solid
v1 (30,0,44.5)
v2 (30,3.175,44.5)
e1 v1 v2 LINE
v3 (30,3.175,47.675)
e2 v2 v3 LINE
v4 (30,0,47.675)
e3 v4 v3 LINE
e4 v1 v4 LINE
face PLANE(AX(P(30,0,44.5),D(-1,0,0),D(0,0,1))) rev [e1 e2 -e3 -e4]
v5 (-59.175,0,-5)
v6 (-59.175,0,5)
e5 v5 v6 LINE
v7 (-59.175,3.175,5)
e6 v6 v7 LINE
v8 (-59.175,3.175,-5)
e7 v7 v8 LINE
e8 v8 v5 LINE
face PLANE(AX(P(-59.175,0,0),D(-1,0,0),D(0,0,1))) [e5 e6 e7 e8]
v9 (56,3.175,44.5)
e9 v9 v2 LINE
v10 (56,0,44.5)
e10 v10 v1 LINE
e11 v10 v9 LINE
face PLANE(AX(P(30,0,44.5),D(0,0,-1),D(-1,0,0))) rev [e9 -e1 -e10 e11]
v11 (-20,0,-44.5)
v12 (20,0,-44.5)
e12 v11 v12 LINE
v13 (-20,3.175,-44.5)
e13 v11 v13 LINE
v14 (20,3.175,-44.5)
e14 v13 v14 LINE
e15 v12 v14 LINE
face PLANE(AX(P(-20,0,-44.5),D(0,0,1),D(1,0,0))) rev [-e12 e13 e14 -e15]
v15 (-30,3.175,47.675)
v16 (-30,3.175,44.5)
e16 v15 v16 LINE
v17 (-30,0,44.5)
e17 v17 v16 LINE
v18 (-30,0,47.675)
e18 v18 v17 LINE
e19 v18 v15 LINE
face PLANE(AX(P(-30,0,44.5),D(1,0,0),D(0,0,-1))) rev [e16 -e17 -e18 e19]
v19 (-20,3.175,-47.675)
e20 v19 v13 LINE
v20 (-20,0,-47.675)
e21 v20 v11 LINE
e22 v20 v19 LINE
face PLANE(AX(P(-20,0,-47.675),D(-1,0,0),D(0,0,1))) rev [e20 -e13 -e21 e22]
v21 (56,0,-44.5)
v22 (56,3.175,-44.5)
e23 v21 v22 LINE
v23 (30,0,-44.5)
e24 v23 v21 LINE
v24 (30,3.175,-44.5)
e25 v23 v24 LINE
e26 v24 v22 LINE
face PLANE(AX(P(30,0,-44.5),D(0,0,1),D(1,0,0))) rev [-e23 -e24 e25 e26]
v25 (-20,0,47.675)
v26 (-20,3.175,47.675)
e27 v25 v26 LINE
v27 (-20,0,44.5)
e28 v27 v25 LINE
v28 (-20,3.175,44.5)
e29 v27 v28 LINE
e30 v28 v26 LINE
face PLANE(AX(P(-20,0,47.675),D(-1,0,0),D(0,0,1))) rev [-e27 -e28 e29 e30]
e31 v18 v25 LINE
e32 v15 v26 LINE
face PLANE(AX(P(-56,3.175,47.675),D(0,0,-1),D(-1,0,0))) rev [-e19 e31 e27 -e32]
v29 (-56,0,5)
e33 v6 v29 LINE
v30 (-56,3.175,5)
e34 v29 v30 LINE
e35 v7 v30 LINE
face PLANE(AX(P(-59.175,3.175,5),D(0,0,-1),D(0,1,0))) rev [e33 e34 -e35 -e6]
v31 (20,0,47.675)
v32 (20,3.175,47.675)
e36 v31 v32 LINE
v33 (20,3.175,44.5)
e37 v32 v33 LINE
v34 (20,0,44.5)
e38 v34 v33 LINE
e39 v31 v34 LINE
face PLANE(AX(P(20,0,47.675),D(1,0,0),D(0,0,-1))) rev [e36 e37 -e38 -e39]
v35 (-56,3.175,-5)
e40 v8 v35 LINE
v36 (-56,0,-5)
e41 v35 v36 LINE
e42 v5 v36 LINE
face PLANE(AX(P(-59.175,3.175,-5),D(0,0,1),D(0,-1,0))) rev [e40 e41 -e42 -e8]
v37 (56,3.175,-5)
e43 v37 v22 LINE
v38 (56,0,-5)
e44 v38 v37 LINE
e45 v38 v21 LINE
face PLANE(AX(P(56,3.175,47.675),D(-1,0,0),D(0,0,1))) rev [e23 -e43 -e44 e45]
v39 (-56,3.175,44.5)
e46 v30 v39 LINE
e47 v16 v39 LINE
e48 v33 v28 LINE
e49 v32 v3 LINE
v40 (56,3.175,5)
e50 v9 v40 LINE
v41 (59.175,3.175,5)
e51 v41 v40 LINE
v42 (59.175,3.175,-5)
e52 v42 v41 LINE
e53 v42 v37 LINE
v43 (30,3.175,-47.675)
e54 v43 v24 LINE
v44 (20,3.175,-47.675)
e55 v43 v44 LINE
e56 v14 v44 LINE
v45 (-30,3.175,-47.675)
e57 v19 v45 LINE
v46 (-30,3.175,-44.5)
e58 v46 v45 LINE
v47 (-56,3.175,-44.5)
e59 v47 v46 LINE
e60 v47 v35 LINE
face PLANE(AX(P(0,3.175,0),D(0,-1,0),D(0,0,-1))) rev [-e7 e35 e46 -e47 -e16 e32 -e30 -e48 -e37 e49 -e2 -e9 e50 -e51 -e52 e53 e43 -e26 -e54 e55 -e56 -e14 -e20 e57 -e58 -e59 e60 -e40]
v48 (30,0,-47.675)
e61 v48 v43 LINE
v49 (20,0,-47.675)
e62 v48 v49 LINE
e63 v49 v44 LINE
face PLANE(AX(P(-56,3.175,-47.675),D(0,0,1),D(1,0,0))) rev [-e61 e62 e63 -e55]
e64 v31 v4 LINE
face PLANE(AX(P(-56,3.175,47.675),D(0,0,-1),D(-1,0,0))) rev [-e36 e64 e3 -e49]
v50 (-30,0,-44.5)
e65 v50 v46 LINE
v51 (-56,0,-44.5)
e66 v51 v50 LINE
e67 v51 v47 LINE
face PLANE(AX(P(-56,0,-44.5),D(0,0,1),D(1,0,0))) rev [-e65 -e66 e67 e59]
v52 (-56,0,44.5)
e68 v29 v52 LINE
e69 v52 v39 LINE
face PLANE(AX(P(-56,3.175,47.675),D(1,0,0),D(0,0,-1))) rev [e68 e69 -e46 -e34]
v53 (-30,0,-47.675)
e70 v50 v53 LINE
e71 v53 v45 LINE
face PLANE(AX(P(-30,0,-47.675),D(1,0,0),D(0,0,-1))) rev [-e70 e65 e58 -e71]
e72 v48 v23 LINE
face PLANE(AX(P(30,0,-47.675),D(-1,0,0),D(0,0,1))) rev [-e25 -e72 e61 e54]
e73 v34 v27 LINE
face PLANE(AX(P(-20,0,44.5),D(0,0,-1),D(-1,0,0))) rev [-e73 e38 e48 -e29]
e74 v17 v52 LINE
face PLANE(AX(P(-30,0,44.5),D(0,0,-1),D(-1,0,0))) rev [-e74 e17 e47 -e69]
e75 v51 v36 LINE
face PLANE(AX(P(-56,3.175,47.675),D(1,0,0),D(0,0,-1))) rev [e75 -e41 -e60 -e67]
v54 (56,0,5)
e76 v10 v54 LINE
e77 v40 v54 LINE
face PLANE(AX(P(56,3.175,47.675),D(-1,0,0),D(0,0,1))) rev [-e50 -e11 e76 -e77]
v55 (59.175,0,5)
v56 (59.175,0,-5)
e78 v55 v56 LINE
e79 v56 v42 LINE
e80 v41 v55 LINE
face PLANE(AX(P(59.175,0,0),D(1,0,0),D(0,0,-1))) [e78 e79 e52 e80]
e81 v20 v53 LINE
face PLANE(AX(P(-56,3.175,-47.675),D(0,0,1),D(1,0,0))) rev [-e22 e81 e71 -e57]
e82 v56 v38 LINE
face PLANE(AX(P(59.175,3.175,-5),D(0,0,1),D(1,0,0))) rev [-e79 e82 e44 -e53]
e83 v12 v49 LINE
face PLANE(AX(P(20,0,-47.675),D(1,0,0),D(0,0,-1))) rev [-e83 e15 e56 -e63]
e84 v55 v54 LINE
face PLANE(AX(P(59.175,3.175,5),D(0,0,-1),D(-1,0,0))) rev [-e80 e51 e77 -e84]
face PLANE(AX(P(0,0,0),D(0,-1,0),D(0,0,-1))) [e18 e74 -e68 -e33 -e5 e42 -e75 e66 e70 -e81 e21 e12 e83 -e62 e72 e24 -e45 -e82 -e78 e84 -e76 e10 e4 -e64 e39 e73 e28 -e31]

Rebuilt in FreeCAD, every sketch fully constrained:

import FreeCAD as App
import Part
import Sketcher

V = App.Vector

doc = App.newDocument("Part")
body = doc.addObject("PartDesign::Body", "Body")

sketch1 = body.newObject("Sketcher::SketchObject", "Sketch")
sketch1.AttachmentSupport = (doc.getObject("XZ_Plane"), [""])
sketch1.MapMode = "FlatFace"
sketch1.addGeometry(Part.LineSegment(V(-56, -48, 0), V(-56, 48, 0)), False)
sketch1.addGeometry(Part.LineSegment(V(-56, 48, 0), V(56, 48, 0)), False)
sketch1.addGeometry(Part.LineSegment(V(56, 48, 0), V(56, -48, 0)), False)
sketch1.addGeometry(Part.LineSegment(V(56, -48, 0), V(-56, -48, 0)), False)
sketch1.addConstraint(Sketcher.Constraint("Coincident", 0, 2, 1, 1))
sketch1.addConstraint(Sketcher.Constraint("Coincident", 1, 2, 2, 1))
sketch1.addConstraint(Sketcher.Constraint("Coincident", 2, 2, 3, 1))
sketch1.addConstraint(Sketcher.Constraint("Coincident", 3, 2, 0, 1))
sketch1.addConstraint(Sketcher.Constraint("Vertical", 0))
sketch1.addConstraint(Sketcher.Constraint("Horizontal", 1))
sketch1.addConstraint(Sketcher.Constraint("Vertical", 2))
sketch1.addConstraint(Sketcher.Constraint("Horizontal", 3))
sketch1.addConstraint(Sketcher.Constraint("Symmetric", 0, 2, 2, 2, -1, 1))
sketch1.addConstraint(Sketcher.Constraint("DistanceX", 1, 1, 1, 2, 112.0))
sketch1.addConstraint(Sketcher.Constraint("DistanceY", 0, 1, 0, 2, 95.35))
pad1 = body.newObject("PartDesign::Pad", "Pad")
pad1.Profile = sketch1
pad1.Length = 3.175
pad1.Reversed = True

sketch2 = body.newObject("Sketcher::SketchObject", "Sketch001")
sketch2.AttachmentSupport = (doc.getObject("XZ_Plane"), [""])
sketch2.MapMode = "FlatFace"
sketch2.AttachmentOffset = App.Placement(V(0, 0, -3.175), App.Rotation())
sketch2.addGeometry(Part.LineSegment(V(-20, -47.7, 0), V(-20, -44.5, 0)), False)
sketch2.addGeometry(Part.LineSegment(V(-20, -44.5, 0), V(20, -44.5, 0)), False)
sketch2.addGeometry(Part.LineSegment(V(20, -44.5, 0), V(20, -47.7, 0)), False)
sketch2.addGeometry(Part.LineSegment(V(20, -47.7, 0), V(-20, -47.7, 0)), False)
sketch2.addGeometry(Part.LineSegment(V(30, -47.7, 0), V(30, -44.5, 0)), False)
sketch2.addGeometry(Part.LineSegment(V(30, -44.5, 0), V(56, -44.5, 0)), False)
sketch2.addGeometry(Part.LineSegment(V(56, -44.5, 0), V(56, -47.7, 0)), False)
sketch2.addGeometry(Part.LineSegment(V(56, -47.7, 0), V(30, -47.7, 0)), False)
sketch2.addGeometry(Part.LineSegment(V(-56, -47.7, 0), V(-56, -44.5, 0)), False)
sketch2.addGeometry(Part.LineSegment(V(-56, -44.5, 0), V(-30, -44.5, 0)), False)
sketch2.addGeometry(Part.LineSegment(V(-30, -44.5, 0), V(-30, -47.7, 0)), False)
sketch2.addGeometry(Part.LineSegment(V(-30, -47.7, 0), V(-56, -47.7, 0)), False)
sketch2.addGeometry(Part.LineSegment(V(-20, 44.5, 0), V(-20, 47.7, 0)), False)
sketch2.addGeometry(Part.LineSegment(V(-20, 47.7, 0), V(20, 47.7, 0)), False)
sketch2.addGeometry(Part.LineSegment(V(20, 47.7, 0), V(20, 44.5, 0)), False)
sketch2.addGeometry(Part.LineSegment(V(20, 44.5, 0), V(-20, 44.5, 0)), False)
sketch2.addGeometry(Part.LineSegment(V(-56, 44.5, 0), V(-56, 47.7, 0)), False)
sketch2.addGeometry(Part.LineSegment(V(-56, 47.7, 0), V(-30, 47.7, 0)), False)
sketch2.addGeometry(Part.LineSegment(V(-30, 47.7, 0), V(-30, 44.5, 0)), False)
sketch2.addGeometry(Part.LineSegment(V(-30, 44.5, 0), V(-56, 44.5, 0)), False)
sketch2.addGeometry(Part.LineSegment(V(30, 44.5, 0), V(30, 47.7, 0)), False)
sketch2.addGeometry(Part.LineSegment(V(30, 47.7, 0), V(56, 47.7, 0)), False)
sketch2.addGeometry(Part.LineSegment(V(56, 47.7, 0), V(56, 44.5, 0)), False)
sketch2.addGeometry(Part.LineSegment(V(56, 44.5, 0), V(30, 44.5, 0)), False)
sketch2.addConstraint(Sketcher.Constraint("Coincident", 0, 2, 1, 1))
sketch2.addConstraint(Sketcher.Constraint("Coincident", 1, 2, 2, 1))
sketch2.addConstraint(Sketcher.Constraint("Coincident", 2, 2, 3, 1))
sketch2.addConstraint(Sketcher.Constraint("Coincident", 3, 2, 0, 1))
sketch2.addConstraint(Sketcher.Constraint("Coincident", 4, 2, 5, 1))
sketch2.addConstraint(Sketcher.Constraint("Coincident", 5, 2, 6, 1))
sketch2.addConstraint(Sketcher.Constraint("Coincident", 6, 2, 7, 1))
sketch2.addConstraint(Sketcher.Constraint("Coincident", 7, 2, 4, 1))
sketch2.addConstraint(Sketcher.Constraint("Coincident", 8, 2, 9, 1))
sketch2.addConstraint(Sketcher.Constraint("Coincident", 9, 2, 10, 1))
sketch2.addConstraint(Sketcher.Constraint("Coincident", 10, 2, 11, 1))
sketch2.addConstraint(Sketcher.Constraint("Coincident", 11, 2, 8, 1))
sketch2.addConstraint(Sketcher.Constraint("Coincident", 12, 2, 13, 1))
sketch2.addConstraint(Sketcher.Constraint("Coincident", 13, 2, 14, 1))
sketch2.addConstraint(Sketcher.Constraint("Coincident", 14, 2, 15, 1))
sketch2.addConstraint(Sketcher.Constraint("Coincident", 15, 2, 12, 1))
sketch2.addConstraint(Sketcher.Constraint("Coincident", 16, 2, 17, 1))
sketch2.addConstraint(Sketcher.Constraint("Coincident", 17, 2, 18, 1))
sketch2.addConstraint(Sketcher.Constraint("Coincident", 18, 2, 19, 1))
sketch2.addConstraint(Sketcher.Constraint("Coincident", 19, 2, 16, 1))
sketch2.addConstraint(Sketcher.Constraint("Coincident", 20, 2, 21, 1))
sketch2.addConstraint(Sketcher.Constraint("Coincident", 21, 2, 22, 1))
sketch2.addConstraint(Sketcher.Constraint("Coincident", 22, 2, 23, 1))
sketch2.addConstraint(Sketcher.Constraint("Coincident", 23, 2, 20, 1))
sketch2.addConstraint(Sketcher.Constraint("Vertical", 0))
sketch2.addConstraint(Sketcher.Constraint("Horizontal", 1))
sketch2.addConstraint(Sketcher.Constraint("Vertical", 2))
sketch2.addConstraint(Sketcher.Constraint("Horizontal", 3))
sketch2.addConstraint(Sketcher.Constraint("Vertical", 4))
sketch2.addConstraint(Sketcher.Constraint("Horizontal", 5))
sketch2.addConstraint(Sketcher.Constraint("Vertical", 6))
sketch2.addConstraint(Sketcher.Constraint("Horizontal", 7))
sketch2.addConstraint(Sketcher.Constraint("Vertical", 8))
sketch2.addConstraint(Sketcher.Constraint("Horizontal", 9))
sketch2.addConstraint(Sketcher.Constraint("Vertical", 10))
sketch2.addConstraint(Sketcher.Constraint("Horizontal", 11))
sketch2.addConstraint(Sketcher.Constraint("Vertical", 12))
sketch2.addConstraint(Sketcher.Constraint("Horizontal", 13))
sketch2.addConstraint(Sketcher.Constraint("Vertical", 14))
sketch2.addConstraint(Sketcher.Constraint("Horizontal", 15))
sketch2.addConstraint(Sketcher.Constraint("Vertical", 16))
sketch2.addConstraint(Sketcher.Constraint("Horizontal", 17))
sketch2.addConstraint(Sketcher.Constraint("Vertical", 18))
sketch2.addConstraint(Sketcher.Constraint("Horizontal", 19))
sketch2.addConstraint(Sketcher.Constraint("Vertical", 20))
sketch2.addConstraint(Sketcher.Constraint("Horizontal", 21))
sketch2.addConstraint(Sketcher.Constraint("Vertical", 22))
sketch2.addConstraint(Sketcher.Constraint("Horizontal", 23))
sketch2.addConstraint(Sketcher.Constraint("Symmetric", 2, 2, 12, 2, -1, 1))
sketch2.addConstraint(Sketcher.Constraint("Symmetric", 0, 2, 14, 2, -1, 1))
sketch2.addConstraint(Sketcher.Constraint("Symmetric", 6, 2, 16, 2, -1, 1))
sketch2.addConstraint(Sketcher.Constraint("Symmetric", 4, 2, 18, 2, -1, 1))
sketch2.addConstraint(Sketcher.Constraint("Symmetric", 10, 2, 20, 2, -1, 1))
sketch2.addConstraint(Sketcher.Constraint("Symmetric", 8, 2, 22, 2, -1, 1))
sketch2.addConstraint(Sketcher.Constraint("Symmetric", 5, 2, 8, 2, -2))
sketch2.addConstraint(Sketcher.Constraint("Symmetric", 7, 2, 10, 2, -2))
sketch2.addConstraint(Sketcher.Constraint("Horizontal", 1, 2, 4, 2))
sketch2.addConstraint(Sketcher.Constraint("Horizontal", 3, 2, 6, 2))
sketch2.addConstraint(Sketcher.Constraint("Vertical", 3, 2, 12, 2))
sketch2.addConstraint(Sketcher.Constraint("DistanceX", 1, 1, 1, 2, 40.0))
sketch2.addConstraint(Sketcher.Constraint("DistanceX", 5, 1, 5, 2, 26.0))
sketch2.addConstraint(Sketcher.Constraint("DistanceX", -1, 1, 4, 2, 30.0))
sketch2.addConstraint(Sketcher.Constraint("DistanceY", 1, 2, 14, 2, 89.0))
sketch2.addConstraint(Sketcher.Constraint("DistanceY", 0, 1, 0, 2, 3.175))
pocket1 = body.newObject("PartDesign::Pocket", "Pocket")
pocket1.Profile = sketch2
pocket1.Type = "ThroughAll"
pocket1.Reversed = True

sketch3 = body.newObject("Sketcher::SketchObject", "Sketch002")
sketch3.AttachmentSupport = (doc.getObject("YZ_Plane"), [""])
sketch3.MapMode = "FlatFace"
sketch3.AttachmentOffset = App.Placement(V(0, 0, -56), App.Rotation())
sketch3.addGeometry(Part.LineSegment(V(3.2, -5, 0), V(0, -5, 0)), False)
sketch3.addGeometry(Part.LineSegment(V(0, -5, 0), V(0, 5, 0)), False)
sketch3.addGeometry(Part.LineSegment(V(0, 5, 0), V(3.2, 5, 0)), False)
sketch3.addGeometry(Part.LineSegment(V(3.2, 5, 0), V(3.2, -5, 0)), False)
sketch3.addConstraint(Sketcher.Constraint("Coincident", 0, 2, 1, 1))
sketch3.addConstraint(Sketcher.Constraint("Coincident", 1, 2, 2, 1))
sketch3.addConstraint(Sketcher.Constraint("Coincident", 2, 2, 3, 1))
sketch3.addConstraint(Sketcher.Constraint("Coincident", 3, 2, 0, 1))
sketch3.addConstraint(Sketcher.Constraint("Horizontal", 0))
sketch3.addConstraint(Sketcher.Constraint("Vertical", 1))
sketch3.addConstraint(Sketcher.Constraint("Horizontal", 2))
sketch3.addConstraint(Sketcher.Constraint("Vertical", 3))
sketch3.addConstraint(Sketcher.Constraint("Symmetric", 0, 2, 1, 2, -1, 1))
sketch3.addConstraint(Sketcher.Constraint("DistanceY", 1, 1, 1, 2, 10.0))
sketch3.addConstraint(Sketcher.Constraint("DistanceX", 0, 2, 0, 1, 3.175))
pad2 = body.newObject("PartDesign::Pad", "Pad001")
pad2.Profile = sketch3
pad2.Length = 3.175
pad2.Reversed = True

sketch4 = body.newObject("Sketcher::SketchObject", "Sketch003")
sketch4.AttachmentSupport = (doc.getObject("YZ_Plane"), [""])
sketch4.MapMode = "FlatFace"
sketch4.AttachmentOffset = App.Placement(V(0, 0, 56), App.Rotation())
sketch4.addGeometry(Part.LineSegment(V(3.2, 5, 0), V(0, 5, 0)), False)
sketch4.addGeometry(Part.LineSegment(V(0, 5, 0), V(0, -5, 0)), False)
sketch4.addGeometry(Part.LineSegment(V(0, -5, 0), V(3.2, -5, 0)), False)
sketch4.addGeometry(Part.LineSegment(V(3.2, -5, 0), V(3.2, 5, 0)), False)
sketch4.addConstraint(Sketcher.Constraint("Coincident", 0, 2, 1, 1))
sketch4.addConstraint(Sketcher.Constraint("Coincident", 1, 2, 2, 1))
sketch4.addConstraint(Sketcher.Constraint("Coincident", 2, 2, 3, 1))
sketch4.addConstraint(Sketcher.Constraint("Coincident", 3, 2, 0, 1))
sketch4.addConstraint(Sketcher.Constraint("Horizontal", 0))
sketch4.addConstraint(Sketcher.Constraint("Vertical", 1))
sketch4.addConstraint(Sketcher.Constraint("Horizontal", 2))
sketch4.addConstraint(Sketcher.Constraint("Vertical", 3))
sketch4.addConstraint(Sketcher.Constraint("Symmetric", 0, 2, 1, 2, -1, 1))
sketch4.addConstraint(Sketcher.Constraint("DistanceY", 1, 2, 1, 1, 10.0))
sketch4.addConstraint(Sketcher.Constraint("DistanceX", 0, 2, 0, 1, 3.175))
pad3 = body.newObject("PartDesign::Pad", "Pad002")
pad3.Profile = sketch4
pad3.Length = 3.175

doc.recompute()
